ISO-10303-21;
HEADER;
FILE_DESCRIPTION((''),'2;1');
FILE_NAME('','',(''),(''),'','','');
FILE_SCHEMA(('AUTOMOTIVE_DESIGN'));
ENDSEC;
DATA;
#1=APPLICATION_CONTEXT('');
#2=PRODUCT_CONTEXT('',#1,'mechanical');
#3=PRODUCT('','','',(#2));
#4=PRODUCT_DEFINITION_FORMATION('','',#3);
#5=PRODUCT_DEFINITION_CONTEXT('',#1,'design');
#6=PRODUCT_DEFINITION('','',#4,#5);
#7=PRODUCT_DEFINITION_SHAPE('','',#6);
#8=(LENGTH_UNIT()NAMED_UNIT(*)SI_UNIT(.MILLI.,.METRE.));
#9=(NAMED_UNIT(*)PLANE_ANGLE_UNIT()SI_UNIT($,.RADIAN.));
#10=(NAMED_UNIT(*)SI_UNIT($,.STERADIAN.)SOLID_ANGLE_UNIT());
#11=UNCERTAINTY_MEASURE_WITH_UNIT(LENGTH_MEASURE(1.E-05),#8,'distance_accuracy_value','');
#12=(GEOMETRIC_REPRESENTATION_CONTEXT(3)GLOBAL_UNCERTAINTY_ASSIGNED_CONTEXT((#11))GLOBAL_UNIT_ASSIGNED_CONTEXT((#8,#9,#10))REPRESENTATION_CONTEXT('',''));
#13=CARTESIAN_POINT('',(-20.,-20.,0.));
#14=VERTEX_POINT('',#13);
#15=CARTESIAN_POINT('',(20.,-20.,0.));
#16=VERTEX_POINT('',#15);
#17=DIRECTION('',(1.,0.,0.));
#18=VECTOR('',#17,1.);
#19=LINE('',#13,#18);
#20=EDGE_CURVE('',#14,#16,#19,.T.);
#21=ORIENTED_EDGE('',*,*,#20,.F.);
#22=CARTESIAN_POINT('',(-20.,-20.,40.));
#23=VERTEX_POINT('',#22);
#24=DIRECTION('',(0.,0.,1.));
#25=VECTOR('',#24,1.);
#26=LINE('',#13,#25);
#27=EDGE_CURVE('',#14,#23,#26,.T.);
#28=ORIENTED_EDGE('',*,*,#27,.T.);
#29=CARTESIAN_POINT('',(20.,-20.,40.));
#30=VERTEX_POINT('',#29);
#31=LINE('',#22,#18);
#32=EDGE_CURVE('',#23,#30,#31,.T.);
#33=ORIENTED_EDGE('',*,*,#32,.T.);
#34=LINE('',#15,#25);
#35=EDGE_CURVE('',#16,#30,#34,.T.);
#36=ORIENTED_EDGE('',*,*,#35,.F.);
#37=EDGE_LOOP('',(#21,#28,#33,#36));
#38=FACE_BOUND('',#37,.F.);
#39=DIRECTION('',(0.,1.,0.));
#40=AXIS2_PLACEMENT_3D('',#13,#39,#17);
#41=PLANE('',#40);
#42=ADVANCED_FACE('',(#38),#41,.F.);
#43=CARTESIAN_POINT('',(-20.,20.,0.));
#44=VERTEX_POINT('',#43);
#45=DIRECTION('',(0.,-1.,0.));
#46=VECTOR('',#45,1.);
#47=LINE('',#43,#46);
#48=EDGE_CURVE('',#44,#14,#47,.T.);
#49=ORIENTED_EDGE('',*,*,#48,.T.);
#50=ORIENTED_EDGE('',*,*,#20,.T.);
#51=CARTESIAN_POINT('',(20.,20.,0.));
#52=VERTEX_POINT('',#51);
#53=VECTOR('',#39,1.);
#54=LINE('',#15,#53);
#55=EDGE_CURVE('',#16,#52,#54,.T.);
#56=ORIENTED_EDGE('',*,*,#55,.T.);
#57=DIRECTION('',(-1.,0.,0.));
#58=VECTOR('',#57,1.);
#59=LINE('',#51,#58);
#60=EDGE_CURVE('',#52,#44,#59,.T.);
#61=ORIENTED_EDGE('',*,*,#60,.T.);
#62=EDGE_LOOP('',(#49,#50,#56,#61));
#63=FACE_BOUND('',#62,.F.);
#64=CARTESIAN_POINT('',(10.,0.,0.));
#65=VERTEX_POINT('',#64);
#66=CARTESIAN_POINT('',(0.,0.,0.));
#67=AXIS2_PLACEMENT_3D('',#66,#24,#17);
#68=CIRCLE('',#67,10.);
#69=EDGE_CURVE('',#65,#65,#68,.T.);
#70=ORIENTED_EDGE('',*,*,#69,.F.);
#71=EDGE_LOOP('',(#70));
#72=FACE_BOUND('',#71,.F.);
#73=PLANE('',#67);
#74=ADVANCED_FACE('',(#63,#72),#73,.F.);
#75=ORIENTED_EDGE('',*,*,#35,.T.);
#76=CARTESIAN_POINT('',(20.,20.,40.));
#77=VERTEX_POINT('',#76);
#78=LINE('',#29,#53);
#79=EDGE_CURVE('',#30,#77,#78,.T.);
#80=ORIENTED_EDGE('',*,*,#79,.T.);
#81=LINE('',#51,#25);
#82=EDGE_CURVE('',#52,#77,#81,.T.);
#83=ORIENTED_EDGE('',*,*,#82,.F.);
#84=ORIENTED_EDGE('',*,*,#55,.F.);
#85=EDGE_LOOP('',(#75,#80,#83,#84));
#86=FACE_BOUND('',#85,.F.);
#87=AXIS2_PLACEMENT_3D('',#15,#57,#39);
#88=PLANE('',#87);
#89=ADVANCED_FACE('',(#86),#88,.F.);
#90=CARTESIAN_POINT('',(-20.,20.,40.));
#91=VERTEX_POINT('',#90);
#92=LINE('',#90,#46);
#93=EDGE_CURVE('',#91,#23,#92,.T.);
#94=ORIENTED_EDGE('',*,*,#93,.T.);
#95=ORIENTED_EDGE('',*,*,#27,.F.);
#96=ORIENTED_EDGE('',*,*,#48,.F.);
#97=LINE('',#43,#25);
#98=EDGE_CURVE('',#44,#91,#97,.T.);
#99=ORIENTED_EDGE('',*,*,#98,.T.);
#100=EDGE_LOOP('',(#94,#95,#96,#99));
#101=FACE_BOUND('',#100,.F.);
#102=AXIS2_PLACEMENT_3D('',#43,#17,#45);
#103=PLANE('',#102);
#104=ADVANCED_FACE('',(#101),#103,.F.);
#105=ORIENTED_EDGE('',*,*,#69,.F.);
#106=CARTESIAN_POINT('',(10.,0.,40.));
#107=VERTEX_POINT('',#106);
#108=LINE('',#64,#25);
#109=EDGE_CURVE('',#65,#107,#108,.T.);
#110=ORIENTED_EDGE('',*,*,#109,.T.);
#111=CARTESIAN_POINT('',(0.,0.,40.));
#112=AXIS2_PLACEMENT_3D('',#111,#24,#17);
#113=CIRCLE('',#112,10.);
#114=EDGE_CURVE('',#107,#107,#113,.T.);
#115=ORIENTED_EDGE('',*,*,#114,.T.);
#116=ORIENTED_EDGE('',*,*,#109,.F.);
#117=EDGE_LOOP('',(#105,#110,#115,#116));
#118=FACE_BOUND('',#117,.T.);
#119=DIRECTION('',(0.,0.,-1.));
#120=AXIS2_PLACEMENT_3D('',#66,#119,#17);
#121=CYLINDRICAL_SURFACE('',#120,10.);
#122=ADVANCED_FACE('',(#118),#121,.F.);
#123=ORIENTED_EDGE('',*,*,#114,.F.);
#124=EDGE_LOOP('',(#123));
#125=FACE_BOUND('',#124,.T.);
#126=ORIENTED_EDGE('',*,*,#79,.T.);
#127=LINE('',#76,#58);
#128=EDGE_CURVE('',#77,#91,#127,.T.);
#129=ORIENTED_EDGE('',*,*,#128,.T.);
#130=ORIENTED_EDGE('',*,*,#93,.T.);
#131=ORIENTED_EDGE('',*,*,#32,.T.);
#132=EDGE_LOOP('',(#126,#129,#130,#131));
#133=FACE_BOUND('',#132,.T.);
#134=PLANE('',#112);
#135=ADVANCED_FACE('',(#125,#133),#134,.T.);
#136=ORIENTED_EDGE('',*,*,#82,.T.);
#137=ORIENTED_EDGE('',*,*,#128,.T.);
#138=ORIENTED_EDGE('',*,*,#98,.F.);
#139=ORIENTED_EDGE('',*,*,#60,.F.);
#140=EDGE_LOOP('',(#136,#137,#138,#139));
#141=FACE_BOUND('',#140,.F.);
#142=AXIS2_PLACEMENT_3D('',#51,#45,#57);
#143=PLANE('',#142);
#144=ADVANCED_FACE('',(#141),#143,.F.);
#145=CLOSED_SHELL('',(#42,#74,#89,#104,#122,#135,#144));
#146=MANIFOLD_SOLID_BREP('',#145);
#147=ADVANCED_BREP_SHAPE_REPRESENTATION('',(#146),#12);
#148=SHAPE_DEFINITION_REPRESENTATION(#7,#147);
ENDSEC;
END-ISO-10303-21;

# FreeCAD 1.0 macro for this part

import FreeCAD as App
import Part
import Sketcher

V = App.Vector

doc = App.newDocument("Part")
body = doc.addObject("PartDesign::Body", "Body")

# Sketch on XY plane
sketch1 = doc.addObject("Sketcher::SketchObject", "Sketch")
body.addObject(sketch1)
sketch1.AttachmentSupport = (doc.XY_Plane, [""])
sketch1.MapMode = "FlatFace"
sketch1.addGeometry(Part.LineSegment(V(20, -20, 0), V(20, 20, 0)), False)
sketch1.addGeometry(Part.LineSegment(V(20, 20, 0), V(-20, 20, 0)), False)
sketch1.addGeometry(Part.LineSegment(V(-20, 20, 0), V(-20, -20, 0)), False)
sketch1.addGeometry(Part.LineSegment(V(-20, -20, 0), V(20, -20, 0)), False)
sketch1.addGeometry(Part.Circle(V(0, 0, 0), V(0, 0, 1), 10), False)
sketch1.addConstraint(Sketcher.Constraint("Coincident", 0, 2, 1, 1))
sketch1.addConstraint(Sketcher.Constraint("Coincident", 1, 2, 2, 1))
sketch1.addConstraint(Sketcher.Constraint("Coincident", 2, 2, 3, 1))
sketch1.addConstraint(Sketcher.Constraint("Coincident", 3, 2, 0, 1))
sketch1.addConstraint(Sketcher.Constraint("Vertical", 0))
sketch1.addConstraint(Sketcher.Constraint("Horizontal", 1))
sketch1.addConstraint(Sketcher.Constraint("Vertical", 2))
sketch1.addConstraint(Sketcher.Constraint("Horizontal", 3))
sketch1.addConstraint(Sketcher.Constraint("Coincident", 4, 3, -1, 1))
sketch1.addConstraint(Sketcher.Constraint("Symmetric", 0, 2, 2, 2, -1, 1))
sketch1.addConstraint(Sketcher.Constraint("Equal", 3, 0))
sketch1.addConstraint(Sketcher.Constraint("Diameter", 4, 20.0))
sketch1.addConstraint(Sketcher.Constraint("DistanceX", 1, 2, 1, 1, 40.0))
pad1 = doc.addObject("PartDesign::Pad", "Pad")
body.addObject(pad1)
pad1.Profile = sketch1
pad1.Length = 40

doc.recompute()
